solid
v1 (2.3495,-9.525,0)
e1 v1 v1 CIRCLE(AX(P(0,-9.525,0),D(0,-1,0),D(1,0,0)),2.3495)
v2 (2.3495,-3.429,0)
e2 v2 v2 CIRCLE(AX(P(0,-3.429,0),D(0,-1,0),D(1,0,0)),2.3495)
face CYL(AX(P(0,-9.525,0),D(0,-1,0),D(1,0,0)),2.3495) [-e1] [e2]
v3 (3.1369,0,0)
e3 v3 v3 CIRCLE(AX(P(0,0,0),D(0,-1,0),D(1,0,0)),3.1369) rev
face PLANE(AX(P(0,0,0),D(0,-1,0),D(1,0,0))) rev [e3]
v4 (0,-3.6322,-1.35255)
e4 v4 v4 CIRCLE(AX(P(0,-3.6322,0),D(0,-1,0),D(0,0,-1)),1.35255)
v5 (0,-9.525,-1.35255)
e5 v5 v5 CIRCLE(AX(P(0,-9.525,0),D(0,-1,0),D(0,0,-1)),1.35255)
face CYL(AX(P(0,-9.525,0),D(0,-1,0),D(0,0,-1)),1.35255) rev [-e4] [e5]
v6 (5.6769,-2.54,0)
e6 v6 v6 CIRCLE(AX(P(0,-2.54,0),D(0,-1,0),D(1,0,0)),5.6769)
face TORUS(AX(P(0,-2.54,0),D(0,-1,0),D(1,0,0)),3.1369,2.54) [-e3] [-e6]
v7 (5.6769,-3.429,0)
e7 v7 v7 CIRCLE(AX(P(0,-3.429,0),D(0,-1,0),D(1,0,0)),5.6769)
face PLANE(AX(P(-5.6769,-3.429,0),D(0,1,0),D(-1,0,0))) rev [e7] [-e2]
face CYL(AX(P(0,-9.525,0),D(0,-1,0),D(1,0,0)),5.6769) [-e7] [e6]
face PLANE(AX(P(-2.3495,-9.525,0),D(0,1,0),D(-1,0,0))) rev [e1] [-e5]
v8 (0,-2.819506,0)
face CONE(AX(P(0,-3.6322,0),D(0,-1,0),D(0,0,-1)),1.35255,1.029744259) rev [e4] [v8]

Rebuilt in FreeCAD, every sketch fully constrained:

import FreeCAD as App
import Part
import Sketcher

V = App.Vector
Q = App.Units.Quantity


def edges_at(feature, points):
    """Names of the edges that pass closest to the given points."""
    edges = feature.Shape.Edges
    near = lambda p: min(range(len(edges)), key=lambda i: edges[i].distToShape(Part.Vertex(*p))[0])
    return sorted({f"Edge{near(p) + 1}" for p in points})


def add_polygon(sketch, points):
    """Adds a closed chain of lines whose ends are joined by coincident constraints."""
    first, n = sketch.GeometryCount, len(points)
    for a, b in zip(points, points[1:] + points[:1]):
        sketch.addGeometry(Part.LineSegment(App.Vector(*a, 0), App.Vector(*b, 0)), False)
    for i in range(n):
        sketch.addConstraint(Sketcher.Constraint("Coincident", first + i, 2, first + (i + 1) % n, 1))

doc = App.newDocument("Part")
params = doc.addObject("Spreadsheet::Sheet", "Params")
for row, (alias, value) in enumerate([
    ("sketch1_height", "0.24 in"),
    ("sketch1_width", "0.131 in"),
    ("sketch1_height2", "0.135 in"),
    ("revolution_angle", "360 deg"),
    ("fillet_radius", "0.1 in"),
    ("hole_diameter", "0.1065 in"),
    ("hole_depth", "0.232 in"),
], start=1):
    params.set(f"A{row}", alias)
    params.set(f"B{row}", "=" + value)
    params.setAlias(f"B{row}", alias)

body = doc.addObject("PartDesign::Body", "Body")

sketch1 = body.newObject("Sketcher::SketchObject", "Sketch")
sketch1.AttachmentSupport = (doc.getObject("XY_Plane"), [""])
sketch1.MapMode = "FlatFace"
add_polygon(sketch1, [(0, 0), (-5.7, 0), (-5.7, -3.4), (-2.3, -3.4), (-2.3, -9.5), (0, -9.5)])
sketch1.addConstraint(Sketcher.Constraint("Horizontal", 0))
sketch1.addConstraint(Sketcher.Constraint("Vertical", 1))
sketch1.addConstraint(Sketcher.Constraint("Horizontal", 2))
sketch1.addConstraint(Sketcher.Constraint("Vertical", 3))
sketch1.addConstraint(Sketcher.Constraint("Horizontal", 4))
sketch1.addConstraint(Sketcher.Constraint("Vertical", 5))
sketch1.addConstraint(Sketcher.Constraint("Coincident", 5, 2, -1, 1))
sketch1.addConstraint(Sketcher.Constraint("DistanceY", 3, 2, 3, 1, Q("0.24 in")))
sketch1.addConstraint(Sketcher.Constraint("DistanceX", 2, 1, 2, 2, Q("0.131 in")))
sketch1.addConstraint(Sketcher.Constraint("DistanceY", 1, 2, 1, 1, Q("0.135 in")))
sketch1.addConstraint(Sketcher.Constraint("DistanceX", 0, 2, 0, 1, Q("0.2235 in")))
sketch1.setExpression("Constraints[13]", "Params.sketch1_height")
sketch1.setExpression("Constraints[14]", "Params.sketch1_width")
sketch1.setExpression("Constraints[15]", "Params.sketch1_height2")
revolution = body.newObject("PartDesign::Revolution", "Revolution")
revolution.Profile = sketch1
revolution.ReferenceAxis = (sketch1, ["V_Axis"])
revolution.setExpression("Angle", "Params.revolution_angle")
doc.recompute()

fillet = body.newObject("PartDesign::Fillet", "Fillet")
fillet.Base = (revolution, edges_at(revolution, [(-5.677, 0, 0)]))
fillet.setExpression("Radius", "Params.fillet_radius")

sketch2 = body.newObject("Sketcher::SketchObject", "Sketch001")
sketch2.AttachmentSupport = (doc.getObject("XZ_Plane"), [""])
sketch2.MapMode = "FlatFace"
sketch2.AttachmentOffset = App.Placement(V(0, 0, 0.375 * 25.4), App.Rotation())
sketch2.addGeometry(Part.Circle(V(0, 0, 0), V(0, 0, 1), 1.4), False)
sketch2.addConstraint(Sketcher.Constraint("Coincident", 0, 3, -1, 1))
sketch2.addConstraint(Sketcher.Constraint("Diameter", 0, Q("0.1065 in")))
doc.recompute()
hole = body.newObject("PartDesign::Hole", "Hole")
hole.Profile = sketch2
hole.ThreadType = "None"
hole.setExpression("Diameter", "Params.hole_diameter")
hole.DepthType = "Dimension"
hole.setExpression("Depth", "Params.hole_depth")
hole.DrillPoint = "Angled"
hole.DrillPointAngle = 118

doc.recompute()
